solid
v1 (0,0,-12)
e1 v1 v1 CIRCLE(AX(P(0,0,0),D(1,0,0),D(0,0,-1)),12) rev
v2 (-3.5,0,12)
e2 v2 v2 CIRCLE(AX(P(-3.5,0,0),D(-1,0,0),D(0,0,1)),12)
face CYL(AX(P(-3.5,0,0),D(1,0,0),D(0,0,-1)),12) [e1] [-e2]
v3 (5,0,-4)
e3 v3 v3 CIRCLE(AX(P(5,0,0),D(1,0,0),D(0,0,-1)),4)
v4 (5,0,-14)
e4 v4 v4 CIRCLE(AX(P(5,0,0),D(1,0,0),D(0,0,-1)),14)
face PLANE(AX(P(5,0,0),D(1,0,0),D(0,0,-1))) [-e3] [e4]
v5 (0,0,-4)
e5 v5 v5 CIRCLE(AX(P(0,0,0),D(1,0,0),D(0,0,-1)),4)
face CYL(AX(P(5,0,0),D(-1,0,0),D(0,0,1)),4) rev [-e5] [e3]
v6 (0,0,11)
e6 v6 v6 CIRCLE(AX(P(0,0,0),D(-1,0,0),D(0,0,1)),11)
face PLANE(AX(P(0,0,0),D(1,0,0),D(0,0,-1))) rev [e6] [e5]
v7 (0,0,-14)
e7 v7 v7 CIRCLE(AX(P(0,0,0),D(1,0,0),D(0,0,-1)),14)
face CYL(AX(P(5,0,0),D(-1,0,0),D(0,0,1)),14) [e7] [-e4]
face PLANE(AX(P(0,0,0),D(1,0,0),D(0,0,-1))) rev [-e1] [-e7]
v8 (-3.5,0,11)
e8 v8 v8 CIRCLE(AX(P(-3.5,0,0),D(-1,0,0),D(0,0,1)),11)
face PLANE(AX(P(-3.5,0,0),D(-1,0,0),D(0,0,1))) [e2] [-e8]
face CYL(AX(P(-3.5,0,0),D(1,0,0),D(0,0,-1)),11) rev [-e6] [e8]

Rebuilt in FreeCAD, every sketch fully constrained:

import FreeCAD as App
import Part
import Sketcher
from FreeCAD import Vector

doc = App.newDocument("Part")
body = doc.addObject("PartDesign::Body", "Body")

sketch1 = doc.addObject("Sketcher::SketchObject", "Sketch")
body.addObject(sketch1)
sketch1.AttachmentSupport = (doc.YZ_Plane, [""])
sketch1.MapMode = "FlatFace"
sketch1.addGeometry([
    Part.Circle(Vector(0, 0, 0), Vector(0, 0, 1), 14),
    Part.Circle(Vector(0, 0, 0), Vector(0, 0, 1), 4),
], False)
sketch1.addConstraint([
    Sketcher.Constraint("Coincident", 0, 3, -1, 1),
    Sketcher.Constraint("Coincident", 1, 3, -1, 1),
    Sketcher.Constraint("Diameter", 0, 28.0),
    Sketcher.Constraint("Diameter", 1, 8.0),
])
pad1 = doc.addObject("PartDesign::Pad", "Pad")
body.addObject(pad1)
pad1.Profile = sketch1
pad1.Length = 5

sketch2 = doc.addObject("Sketcher::SketchObject", "Sketch001")
body.addObject(sketch2)
sketch2.AttachmentSupport = (doc.YZ_Plane, [""])
sketch2.MapMode = "FlatFace"
sketch2.addGeometry([
    Part.Circle(Vector(0, 0, 0), Vector(0, 0, 1), 12),
    Part.Circle(Vector(0, 0, 0), Vector(0, 0, 1), 11),
], False)
sketch2.addConstraint([
    Sketcher.Constraint("Coincident", 0, 3, -1, 1),
    Sketcher.Constraint("Coincident", 1, 3, -1, 1),
    Sketcher.Constraint("Diameter", 0, 24.0),
    Sketcher.Constraint("Diameter", 1, 22.0),
])
pad2 = doc.addObject("PartDesign::Pad", "Pad001")
body.addObject(pad2)
pad2.Profile = sketch2
pad2.Length = 3.5
pad2.Reversed = True

doc.recompute()
